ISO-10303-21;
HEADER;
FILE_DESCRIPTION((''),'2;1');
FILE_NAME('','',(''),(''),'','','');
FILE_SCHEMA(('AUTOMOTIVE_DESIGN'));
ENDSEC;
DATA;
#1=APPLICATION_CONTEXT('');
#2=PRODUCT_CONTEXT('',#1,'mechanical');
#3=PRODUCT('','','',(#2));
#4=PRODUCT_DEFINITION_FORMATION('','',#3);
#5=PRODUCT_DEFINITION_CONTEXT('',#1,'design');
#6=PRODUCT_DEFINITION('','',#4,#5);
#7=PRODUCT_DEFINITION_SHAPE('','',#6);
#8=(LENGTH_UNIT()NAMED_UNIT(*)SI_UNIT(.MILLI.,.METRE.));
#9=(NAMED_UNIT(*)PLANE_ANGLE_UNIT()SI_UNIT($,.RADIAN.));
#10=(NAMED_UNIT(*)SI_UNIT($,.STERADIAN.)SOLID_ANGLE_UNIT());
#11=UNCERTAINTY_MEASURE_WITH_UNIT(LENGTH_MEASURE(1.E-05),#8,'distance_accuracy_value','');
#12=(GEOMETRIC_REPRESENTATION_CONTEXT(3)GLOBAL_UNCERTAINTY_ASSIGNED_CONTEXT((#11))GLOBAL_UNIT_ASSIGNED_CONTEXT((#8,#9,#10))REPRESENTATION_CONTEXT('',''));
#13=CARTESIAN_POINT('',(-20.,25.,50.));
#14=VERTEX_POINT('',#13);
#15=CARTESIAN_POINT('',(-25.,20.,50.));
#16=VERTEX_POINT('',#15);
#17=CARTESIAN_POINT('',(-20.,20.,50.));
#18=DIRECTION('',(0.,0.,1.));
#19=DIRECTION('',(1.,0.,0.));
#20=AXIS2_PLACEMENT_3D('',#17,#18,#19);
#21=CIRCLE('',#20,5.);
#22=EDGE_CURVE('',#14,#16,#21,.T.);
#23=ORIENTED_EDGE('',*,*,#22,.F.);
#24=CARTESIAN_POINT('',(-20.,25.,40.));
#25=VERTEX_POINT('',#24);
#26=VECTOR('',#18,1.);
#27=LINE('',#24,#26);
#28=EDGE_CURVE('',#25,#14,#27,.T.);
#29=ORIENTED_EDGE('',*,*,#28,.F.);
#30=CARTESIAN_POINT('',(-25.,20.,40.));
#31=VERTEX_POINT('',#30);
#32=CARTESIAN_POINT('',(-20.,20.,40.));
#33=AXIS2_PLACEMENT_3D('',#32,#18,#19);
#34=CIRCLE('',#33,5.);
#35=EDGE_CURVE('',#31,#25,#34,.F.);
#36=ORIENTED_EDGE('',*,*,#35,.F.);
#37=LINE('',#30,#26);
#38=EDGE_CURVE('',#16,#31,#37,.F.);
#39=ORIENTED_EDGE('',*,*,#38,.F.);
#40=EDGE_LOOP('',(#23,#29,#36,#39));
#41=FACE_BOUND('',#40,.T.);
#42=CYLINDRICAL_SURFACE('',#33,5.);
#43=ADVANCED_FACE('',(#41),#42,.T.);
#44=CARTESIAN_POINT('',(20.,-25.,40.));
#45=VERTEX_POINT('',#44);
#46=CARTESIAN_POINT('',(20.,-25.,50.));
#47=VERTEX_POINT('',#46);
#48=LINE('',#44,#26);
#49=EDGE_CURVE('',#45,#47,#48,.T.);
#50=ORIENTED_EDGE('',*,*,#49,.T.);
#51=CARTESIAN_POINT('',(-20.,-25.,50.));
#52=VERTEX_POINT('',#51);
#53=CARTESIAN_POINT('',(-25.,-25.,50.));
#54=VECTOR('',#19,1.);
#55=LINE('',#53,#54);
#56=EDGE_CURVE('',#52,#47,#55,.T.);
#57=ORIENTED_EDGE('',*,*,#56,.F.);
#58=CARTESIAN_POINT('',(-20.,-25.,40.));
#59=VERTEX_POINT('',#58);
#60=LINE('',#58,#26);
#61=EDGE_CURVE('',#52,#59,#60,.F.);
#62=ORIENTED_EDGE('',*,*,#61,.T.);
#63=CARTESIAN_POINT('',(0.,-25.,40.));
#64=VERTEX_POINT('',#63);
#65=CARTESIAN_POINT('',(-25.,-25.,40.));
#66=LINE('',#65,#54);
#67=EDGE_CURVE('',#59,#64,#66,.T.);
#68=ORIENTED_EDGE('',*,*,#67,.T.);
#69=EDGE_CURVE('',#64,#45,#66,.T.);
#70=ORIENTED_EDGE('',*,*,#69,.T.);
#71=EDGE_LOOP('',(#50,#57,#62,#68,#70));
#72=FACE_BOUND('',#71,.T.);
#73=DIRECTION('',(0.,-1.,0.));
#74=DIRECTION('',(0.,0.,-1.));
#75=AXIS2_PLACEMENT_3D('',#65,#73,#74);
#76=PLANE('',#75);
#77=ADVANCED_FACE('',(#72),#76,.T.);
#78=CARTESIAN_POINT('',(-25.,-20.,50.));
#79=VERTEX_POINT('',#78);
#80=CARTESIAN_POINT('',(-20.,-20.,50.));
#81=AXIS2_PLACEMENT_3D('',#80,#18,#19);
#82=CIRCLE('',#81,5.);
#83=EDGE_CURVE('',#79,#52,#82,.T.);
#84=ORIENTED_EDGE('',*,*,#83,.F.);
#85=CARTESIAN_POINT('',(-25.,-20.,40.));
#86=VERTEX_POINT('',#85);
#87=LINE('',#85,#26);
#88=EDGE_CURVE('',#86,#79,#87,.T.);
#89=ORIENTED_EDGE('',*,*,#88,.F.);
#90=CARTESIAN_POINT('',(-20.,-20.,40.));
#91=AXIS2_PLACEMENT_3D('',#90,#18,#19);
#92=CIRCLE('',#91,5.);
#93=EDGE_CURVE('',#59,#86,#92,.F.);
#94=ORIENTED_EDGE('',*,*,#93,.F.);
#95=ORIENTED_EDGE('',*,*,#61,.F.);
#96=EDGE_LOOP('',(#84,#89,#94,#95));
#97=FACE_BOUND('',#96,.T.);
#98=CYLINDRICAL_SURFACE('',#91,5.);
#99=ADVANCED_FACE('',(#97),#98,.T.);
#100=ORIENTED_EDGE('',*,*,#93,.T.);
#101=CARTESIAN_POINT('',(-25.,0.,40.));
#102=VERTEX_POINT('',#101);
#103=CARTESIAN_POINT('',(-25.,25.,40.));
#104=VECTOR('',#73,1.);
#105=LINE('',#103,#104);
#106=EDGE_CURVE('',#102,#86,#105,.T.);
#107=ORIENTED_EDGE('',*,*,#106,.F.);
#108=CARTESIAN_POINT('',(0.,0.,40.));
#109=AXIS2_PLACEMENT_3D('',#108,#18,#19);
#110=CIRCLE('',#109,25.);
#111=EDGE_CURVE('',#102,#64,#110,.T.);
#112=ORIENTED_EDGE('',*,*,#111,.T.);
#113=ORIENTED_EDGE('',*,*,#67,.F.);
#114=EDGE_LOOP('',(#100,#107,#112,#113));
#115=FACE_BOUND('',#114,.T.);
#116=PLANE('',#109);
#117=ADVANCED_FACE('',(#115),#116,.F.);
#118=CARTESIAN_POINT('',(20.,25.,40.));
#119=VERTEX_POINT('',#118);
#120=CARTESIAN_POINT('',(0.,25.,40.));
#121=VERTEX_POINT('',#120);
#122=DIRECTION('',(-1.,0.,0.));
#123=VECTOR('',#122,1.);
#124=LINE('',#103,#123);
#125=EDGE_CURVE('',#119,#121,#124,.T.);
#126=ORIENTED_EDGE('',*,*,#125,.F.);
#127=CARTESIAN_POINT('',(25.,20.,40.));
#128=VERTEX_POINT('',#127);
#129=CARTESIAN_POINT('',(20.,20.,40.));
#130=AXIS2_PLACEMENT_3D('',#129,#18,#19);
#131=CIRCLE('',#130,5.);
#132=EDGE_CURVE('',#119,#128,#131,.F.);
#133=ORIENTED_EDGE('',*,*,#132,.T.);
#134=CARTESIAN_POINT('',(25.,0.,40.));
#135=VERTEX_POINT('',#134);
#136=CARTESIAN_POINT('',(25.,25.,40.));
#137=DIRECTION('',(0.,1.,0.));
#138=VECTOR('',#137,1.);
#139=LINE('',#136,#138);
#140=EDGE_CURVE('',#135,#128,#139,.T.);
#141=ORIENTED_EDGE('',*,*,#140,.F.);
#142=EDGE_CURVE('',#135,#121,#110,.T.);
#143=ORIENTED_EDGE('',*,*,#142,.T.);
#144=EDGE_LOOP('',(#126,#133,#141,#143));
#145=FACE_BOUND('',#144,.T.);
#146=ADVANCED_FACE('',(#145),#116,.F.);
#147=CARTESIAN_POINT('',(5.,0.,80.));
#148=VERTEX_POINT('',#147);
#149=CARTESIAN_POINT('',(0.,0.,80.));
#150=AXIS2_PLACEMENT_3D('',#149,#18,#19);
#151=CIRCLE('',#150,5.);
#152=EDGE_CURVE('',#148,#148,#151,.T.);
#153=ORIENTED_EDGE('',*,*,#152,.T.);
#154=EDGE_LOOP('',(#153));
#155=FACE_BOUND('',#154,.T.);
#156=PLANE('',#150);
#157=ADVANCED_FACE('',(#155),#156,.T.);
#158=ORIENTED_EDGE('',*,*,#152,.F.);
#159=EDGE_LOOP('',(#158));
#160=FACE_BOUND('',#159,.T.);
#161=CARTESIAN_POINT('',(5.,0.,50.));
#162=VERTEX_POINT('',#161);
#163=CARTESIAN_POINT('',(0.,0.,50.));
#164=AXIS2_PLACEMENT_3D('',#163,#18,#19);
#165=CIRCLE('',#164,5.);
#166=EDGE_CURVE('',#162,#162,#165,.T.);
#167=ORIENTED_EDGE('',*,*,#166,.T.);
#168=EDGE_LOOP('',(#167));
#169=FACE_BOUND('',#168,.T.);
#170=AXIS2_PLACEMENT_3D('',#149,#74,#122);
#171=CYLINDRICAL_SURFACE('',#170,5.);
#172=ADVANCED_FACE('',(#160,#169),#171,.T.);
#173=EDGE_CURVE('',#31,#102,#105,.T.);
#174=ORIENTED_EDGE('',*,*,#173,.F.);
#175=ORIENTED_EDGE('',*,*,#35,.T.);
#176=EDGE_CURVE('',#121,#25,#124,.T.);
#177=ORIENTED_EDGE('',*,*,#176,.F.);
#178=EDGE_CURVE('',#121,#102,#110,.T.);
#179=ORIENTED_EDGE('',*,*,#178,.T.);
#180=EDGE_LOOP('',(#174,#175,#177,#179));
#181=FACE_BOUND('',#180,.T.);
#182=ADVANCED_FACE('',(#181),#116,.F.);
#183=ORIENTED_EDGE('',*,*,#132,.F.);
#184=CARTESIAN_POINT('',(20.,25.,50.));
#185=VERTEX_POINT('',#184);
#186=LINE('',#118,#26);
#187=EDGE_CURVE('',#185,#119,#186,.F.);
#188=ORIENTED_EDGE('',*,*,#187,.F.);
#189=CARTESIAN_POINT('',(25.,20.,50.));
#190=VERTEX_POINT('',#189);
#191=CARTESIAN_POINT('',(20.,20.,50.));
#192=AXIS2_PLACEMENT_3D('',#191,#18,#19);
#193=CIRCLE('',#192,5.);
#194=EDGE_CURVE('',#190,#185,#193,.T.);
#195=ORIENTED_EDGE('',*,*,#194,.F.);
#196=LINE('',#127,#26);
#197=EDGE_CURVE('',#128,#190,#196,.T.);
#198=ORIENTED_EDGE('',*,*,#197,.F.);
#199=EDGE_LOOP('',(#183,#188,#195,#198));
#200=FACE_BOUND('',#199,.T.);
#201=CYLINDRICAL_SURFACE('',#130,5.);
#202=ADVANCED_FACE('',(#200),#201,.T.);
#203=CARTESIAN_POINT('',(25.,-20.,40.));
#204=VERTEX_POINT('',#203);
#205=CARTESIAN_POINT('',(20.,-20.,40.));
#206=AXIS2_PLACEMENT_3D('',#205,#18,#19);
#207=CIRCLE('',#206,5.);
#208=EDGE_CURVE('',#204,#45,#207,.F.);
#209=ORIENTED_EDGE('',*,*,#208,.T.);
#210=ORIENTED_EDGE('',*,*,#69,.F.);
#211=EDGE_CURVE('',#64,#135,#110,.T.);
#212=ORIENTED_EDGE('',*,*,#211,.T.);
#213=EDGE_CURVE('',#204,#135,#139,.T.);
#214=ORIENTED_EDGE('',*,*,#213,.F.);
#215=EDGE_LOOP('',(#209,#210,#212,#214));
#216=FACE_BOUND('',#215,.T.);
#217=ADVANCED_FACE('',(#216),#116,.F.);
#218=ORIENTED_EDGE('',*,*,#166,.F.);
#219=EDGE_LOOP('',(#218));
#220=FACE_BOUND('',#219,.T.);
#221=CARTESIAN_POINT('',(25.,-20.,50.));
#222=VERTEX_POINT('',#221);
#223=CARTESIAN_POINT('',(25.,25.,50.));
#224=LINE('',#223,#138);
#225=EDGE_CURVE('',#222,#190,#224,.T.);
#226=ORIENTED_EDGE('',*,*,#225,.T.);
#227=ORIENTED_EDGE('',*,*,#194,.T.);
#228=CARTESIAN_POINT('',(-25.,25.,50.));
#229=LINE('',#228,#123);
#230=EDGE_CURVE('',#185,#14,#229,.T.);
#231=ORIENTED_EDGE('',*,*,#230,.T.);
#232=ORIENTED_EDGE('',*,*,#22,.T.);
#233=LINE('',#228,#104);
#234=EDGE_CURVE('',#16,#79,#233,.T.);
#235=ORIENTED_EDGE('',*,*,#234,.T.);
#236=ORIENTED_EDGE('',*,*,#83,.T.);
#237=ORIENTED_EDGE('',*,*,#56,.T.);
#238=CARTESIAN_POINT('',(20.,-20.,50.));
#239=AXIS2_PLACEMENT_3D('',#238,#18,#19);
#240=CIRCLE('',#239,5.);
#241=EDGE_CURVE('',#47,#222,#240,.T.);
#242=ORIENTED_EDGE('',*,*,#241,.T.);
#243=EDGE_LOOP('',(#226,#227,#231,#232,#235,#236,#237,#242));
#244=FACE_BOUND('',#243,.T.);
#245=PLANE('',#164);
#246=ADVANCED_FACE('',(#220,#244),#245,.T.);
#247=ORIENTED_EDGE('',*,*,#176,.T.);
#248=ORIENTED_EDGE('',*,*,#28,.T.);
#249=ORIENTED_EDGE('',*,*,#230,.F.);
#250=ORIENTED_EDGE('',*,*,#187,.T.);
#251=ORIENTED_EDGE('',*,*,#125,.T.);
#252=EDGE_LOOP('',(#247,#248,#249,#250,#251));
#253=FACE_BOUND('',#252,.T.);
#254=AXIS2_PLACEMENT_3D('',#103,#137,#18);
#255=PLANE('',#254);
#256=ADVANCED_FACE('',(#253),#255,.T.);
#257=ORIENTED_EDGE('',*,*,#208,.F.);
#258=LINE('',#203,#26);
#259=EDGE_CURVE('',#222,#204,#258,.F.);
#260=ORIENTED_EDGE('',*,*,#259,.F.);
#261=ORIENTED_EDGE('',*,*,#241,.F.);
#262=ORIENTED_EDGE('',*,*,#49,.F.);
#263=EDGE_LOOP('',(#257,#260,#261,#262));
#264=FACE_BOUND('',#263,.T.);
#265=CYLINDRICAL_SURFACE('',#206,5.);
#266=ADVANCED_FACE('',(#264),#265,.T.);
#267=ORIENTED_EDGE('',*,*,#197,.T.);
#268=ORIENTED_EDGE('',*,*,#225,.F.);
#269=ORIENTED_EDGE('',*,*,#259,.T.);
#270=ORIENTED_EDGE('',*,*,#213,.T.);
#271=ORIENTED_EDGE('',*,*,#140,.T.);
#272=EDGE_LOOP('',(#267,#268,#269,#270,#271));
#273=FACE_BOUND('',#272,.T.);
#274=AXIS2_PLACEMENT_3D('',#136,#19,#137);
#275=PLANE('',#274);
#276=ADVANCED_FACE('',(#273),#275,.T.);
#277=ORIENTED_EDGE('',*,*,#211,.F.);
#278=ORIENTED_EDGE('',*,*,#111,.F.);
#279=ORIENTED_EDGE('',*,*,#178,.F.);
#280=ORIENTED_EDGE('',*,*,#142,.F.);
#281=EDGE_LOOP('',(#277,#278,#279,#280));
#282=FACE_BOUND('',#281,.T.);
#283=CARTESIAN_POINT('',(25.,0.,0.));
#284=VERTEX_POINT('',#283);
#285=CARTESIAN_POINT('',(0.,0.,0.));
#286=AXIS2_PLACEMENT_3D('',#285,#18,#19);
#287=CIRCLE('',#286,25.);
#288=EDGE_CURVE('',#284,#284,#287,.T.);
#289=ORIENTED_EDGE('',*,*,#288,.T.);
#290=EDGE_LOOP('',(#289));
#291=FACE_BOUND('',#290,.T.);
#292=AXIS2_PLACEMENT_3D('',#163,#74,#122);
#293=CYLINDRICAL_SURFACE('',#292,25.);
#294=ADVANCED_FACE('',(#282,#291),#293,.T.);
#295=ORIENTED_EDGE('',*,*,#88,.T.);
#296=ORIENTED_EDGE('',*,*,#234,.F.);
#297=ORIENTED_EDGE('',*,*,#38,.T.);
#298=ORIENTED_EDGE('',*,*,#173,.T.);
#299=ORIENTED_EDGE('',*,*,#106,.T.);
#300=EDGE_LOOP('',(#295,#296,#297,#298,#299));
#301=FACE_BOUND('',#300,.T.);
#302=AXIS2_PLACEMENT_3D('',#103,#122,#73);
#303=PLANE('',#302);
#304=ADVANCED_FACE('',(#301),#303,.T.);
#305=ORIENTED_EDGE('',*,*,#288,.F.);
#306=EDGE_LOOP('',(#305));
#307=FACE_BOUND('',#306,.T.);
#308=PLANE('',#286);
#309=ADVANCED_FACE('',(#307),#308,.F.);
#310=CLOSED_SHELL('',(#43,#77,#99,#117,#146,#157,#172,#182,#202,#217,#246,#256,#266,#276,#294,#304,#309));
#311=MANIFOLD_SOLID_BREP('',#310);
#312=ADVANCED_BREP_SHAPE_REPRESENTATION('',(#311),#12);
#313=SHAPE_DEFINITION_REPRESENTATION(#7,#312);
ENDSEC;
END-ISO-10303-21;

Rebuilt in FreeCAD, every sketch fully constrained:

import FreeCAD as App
import Part
import Sketcher
from FreeCAD import Vector


def edges_at(feature, points):
    """Names of the edges that pass closest to the given points."""
    edges = feature.Shape.Edges
    near = lambda p: min(range(len(edges)), key=lambda i: edges[i].distToShape(Part.Vertex(*p))[0])
    return sorted({f"Edge{near(p) + 1}" for p in points})


def add_polygon(sketch, points):
    """Adds a closed chain of lines whose ends are joined by coincident constraints."""
    first, n = sketch.GeometryCount, len(points)
    for a, b in zip(points, points[1:] + points[:1]):
        sketch.addGeometry(Part.LineSegment(App.Vector(*a, 0), App.Vector(*b, 0)), False)
    for i in range(n):
        sketch.addConstraint(Sketcher.Constraint("Coincident", first + i, 2, first + (i + 1) % n, 1))

doc = App.newDocument("Part")
body = doc.addObject("PartDesign::Body", "Body")

# Sketch on XY plane
sketch1 = doc.addObject("Sketcher::SketchObject", "Sketch")
body.addObject(sketch1)
sketch1.AttachmentSupport = (doc.XY_Plane, [""])
sketch1.MapMode = "FlatFace"
sketch1.addGeometry(Part.Circle(Vector(0, 0, 0), Vector(0, 0, 1), 25), False)
sketch1.addConstraint(Sketcher.Constraint("Coincident", 0, 3, -1, 1))
sketch1.addConstraint(Sketcher.Constraint("Diameter", 0, 50.0))
pad1 = doc.addObject("PartDesign::Pad", "Pad")
body.addObject(pad1)
pad1.Profile = sketch1
pad1.Length = 50

# Sketch on XY plane
sketch2 = doc.addObject("Sketcher::SketchObject", "Sketch001")
body.addObject(sketch2)
sketch2.AttachmentSupport = (doc.XY_Plane, [""])
sketch2.MapMode = "FlatFace"
sketch2.AttachmentOffset = App.Placement(Vector(0, 0, 50), App.Rotation())
sketch2.addGeometry(Part.Circle(Vector(0, 0, 0), Vector(0, 0, 1), 5), False)
sketch2.addConstraint(Sketcher.Constraint("Coincident", 0, 3, -1, 1))
sketch2.addConstraint(Sketcher.Constraint("Diameter", 0, 10.0))
pad2 = doc.addObject("PartDesign::Pad", "Pad001")
body.addObject(pad2)
pad2.Profile = sketch2
pad2.Length = 30

# Sketch on XY plane
sketch3 = doc.addObject("Sketcher::SketchObject", "Sketch002")
body.addObject(sketch3)
sketch3.AttachmentSupport = (doc.XY_Plane, [""])
sketch3.MapMode = "FlatFace"
sketch3.AttachmentOffset = App.Placement(Vector(0, 0, 50), App.Rotation())
add_polygon(sketch3, [(-25, 25), (-25, -25), (25, -25), (25, 25)])  # lines 0-3
sketch3.addConstraint(Sketcher.Constraint("Vertical", 0))
sketch3.addConstraint(Sketcher.Constraint("Horizontal", 1))
sketch3.addConstraint(Sketcher.Constraint("Vertical", 2))
sketch3.addConstraint(Sketcher.Constraint("Horizontal", 3))
sketch3.addConstraint(Sketcher.Constraint("Symmetric", 0, 2, 2, 2, -1, 1))
sketch3.addConstraint(Sketcher.Constraint("Equal", 3, 0))
sketch3.addConstraint(Sketcher.Constraint("DistanceX", 1, 1, 1, 2, 50.0))
pad3 = doc.addObject("PartDesign::Pad", "Pad002")
body.addObject(pad3)
pad3.Profile = sketch3
pad3.Length = 10
pad3.Reversed = True
doc.recompute()

fillet = doc.addObject("PartDesign::Fillet", "Fillet")
body.addObject(fillet)
fillet.Base = (pad3, edges_at(pad3, [
    (25, 25, 45),
    (25, -25, 45),
    (-25, -25, 45),
    (-25, 25, 45),
]))
fillet.Radius = 5

doc.recompute()
